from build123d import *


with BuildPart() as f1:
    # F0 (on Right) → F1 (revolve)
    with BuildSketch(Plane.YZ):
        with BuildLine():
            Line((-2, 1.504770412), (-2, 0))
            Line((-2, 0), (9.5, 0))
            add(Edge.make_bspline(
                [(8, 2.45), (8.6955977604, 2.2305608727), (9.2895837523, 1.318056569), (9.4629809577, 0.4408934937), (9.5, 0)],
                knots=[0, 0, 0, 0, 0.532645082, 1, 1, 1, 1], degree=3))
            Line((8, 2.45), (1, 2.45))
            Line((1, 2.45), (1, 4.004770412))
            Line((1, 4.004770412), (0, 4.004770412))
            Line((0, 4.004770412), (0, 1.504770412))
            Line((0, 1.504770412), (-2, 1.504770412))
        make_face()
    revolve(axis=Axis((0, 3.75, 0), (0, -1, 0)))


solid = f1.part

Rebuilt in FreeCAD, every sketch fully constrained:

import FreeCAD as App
import Part
import Sketcher
Q = App.Units.Quantity

doc = App.newDocument("Part")
body = doc.addObject("PartDesign::Body", "Body")

sketch1 = body.newObject("Sketcher::SketchObject", "Sketch")
sketch1.AttachmentSupport = (doc.getObject("YZ_Plane"), [""])
sketch1.MapMode = "FlatFace"
sketch1.addGeometry([
    Part.LineSegment(App.Vector(-2, 1.50477, 0), App.Vector(-2, 0, 0)),
    Part.LineSegment(App.Vector(-2, 0, 0), App.Vector(9.5, 0, 0)),
    Part.BSplineCurve([App.Vector(8, 2.45, 0), App.Vector(8.695598, 2.230561, 0), App.Vector(9.289584, 1.318057, 0), App.Vector(9.462981, 0.440893, 0), App.Vector(9.5, 0, 0)], [4, 1, 4], [0, 0.532645082, 1], False, 3, [1, 1, 1, 1, 1], False),
    Part.LineSegment(App.Vector(8, 2.45, 0), App.Vector(1, 2.45, 0)),
    Part.LineSegment(App.Vector(1, 2.45, 0), App.Vector(1, 4.00477, 0)),
    Part.LineSegment(App.Vector(1, 4.00477, 0), App.Vector(0, 4.00477, 0)),
    Part.LineSegment(App.Vector(0, 4.00477, 0), App.Vector(0, 1.50477, 0)),
    Part.LineSegment(App.Vector(0, 1.50477, 0), App.Vector(-2, 1.50477, 0)),
], False)
sketch1.addConstraint([
    Sketcher.Constraint("Block", 2),
    Sketcher.Constraint("Coincident", 0, 2, 1, 1),
    Sketcher.Constraint("Coincident", 1, 2, 2, 2),
    Sketcher.Constraint("Coincident", 2, 1, 3, 1),
    Sketcher.Constraint("Coincident", 3, 2, 4, 1),
    Sketcher.Constraint("Coincident", 4, 2, 5, 1),
    Sketcher.Constraint("Coincident", 5, 2, 6, 1),
    Sketcher.Constraint("Coincident", 6, 2, 7, 1),
    Sketcher.Constraint("Coincident", 7, 2, 0, 1),
    Sketcher.Constraint("Vertical", 0),
    Sketcher.Constraint("Horizontal", 1),
    Sketcher.Constraint("Horizontal", 3),
    Sketcher.Constraint("Vertical", 4),
    Sketcher.Constraint("Horizontal", 5),
    Sketcher.Constraint("Vertical", 6),
    Sketcher.Constraint("Horizontal", 7),
    Sketcher.Constraint("PointOnObject", 5, 2, -2),
    Sketcher.Constraint("DistanceX", 3, 2, 3, 1, Q("7 mm")),
    Sketcher.Constraint("DistanceX", 7, 2, 7, 1, Q("2 mm")),
    Sketcher.Constraint("DistanceY", 6, 2, 6, 1, Q("2.5 mm")),
    Sketcher.Constraint("DistanceY", 0, 2, 0, 1, Q("1.50477 mm")),
])
revolution = body.newObject("PartDesign::Revolution", "Revolution")
revolution.Profile = sketch1
revolution.ReferenceAxis = (sketch1, ["H_Axis"])
revolution.Angle = 360

doc.recompute()
